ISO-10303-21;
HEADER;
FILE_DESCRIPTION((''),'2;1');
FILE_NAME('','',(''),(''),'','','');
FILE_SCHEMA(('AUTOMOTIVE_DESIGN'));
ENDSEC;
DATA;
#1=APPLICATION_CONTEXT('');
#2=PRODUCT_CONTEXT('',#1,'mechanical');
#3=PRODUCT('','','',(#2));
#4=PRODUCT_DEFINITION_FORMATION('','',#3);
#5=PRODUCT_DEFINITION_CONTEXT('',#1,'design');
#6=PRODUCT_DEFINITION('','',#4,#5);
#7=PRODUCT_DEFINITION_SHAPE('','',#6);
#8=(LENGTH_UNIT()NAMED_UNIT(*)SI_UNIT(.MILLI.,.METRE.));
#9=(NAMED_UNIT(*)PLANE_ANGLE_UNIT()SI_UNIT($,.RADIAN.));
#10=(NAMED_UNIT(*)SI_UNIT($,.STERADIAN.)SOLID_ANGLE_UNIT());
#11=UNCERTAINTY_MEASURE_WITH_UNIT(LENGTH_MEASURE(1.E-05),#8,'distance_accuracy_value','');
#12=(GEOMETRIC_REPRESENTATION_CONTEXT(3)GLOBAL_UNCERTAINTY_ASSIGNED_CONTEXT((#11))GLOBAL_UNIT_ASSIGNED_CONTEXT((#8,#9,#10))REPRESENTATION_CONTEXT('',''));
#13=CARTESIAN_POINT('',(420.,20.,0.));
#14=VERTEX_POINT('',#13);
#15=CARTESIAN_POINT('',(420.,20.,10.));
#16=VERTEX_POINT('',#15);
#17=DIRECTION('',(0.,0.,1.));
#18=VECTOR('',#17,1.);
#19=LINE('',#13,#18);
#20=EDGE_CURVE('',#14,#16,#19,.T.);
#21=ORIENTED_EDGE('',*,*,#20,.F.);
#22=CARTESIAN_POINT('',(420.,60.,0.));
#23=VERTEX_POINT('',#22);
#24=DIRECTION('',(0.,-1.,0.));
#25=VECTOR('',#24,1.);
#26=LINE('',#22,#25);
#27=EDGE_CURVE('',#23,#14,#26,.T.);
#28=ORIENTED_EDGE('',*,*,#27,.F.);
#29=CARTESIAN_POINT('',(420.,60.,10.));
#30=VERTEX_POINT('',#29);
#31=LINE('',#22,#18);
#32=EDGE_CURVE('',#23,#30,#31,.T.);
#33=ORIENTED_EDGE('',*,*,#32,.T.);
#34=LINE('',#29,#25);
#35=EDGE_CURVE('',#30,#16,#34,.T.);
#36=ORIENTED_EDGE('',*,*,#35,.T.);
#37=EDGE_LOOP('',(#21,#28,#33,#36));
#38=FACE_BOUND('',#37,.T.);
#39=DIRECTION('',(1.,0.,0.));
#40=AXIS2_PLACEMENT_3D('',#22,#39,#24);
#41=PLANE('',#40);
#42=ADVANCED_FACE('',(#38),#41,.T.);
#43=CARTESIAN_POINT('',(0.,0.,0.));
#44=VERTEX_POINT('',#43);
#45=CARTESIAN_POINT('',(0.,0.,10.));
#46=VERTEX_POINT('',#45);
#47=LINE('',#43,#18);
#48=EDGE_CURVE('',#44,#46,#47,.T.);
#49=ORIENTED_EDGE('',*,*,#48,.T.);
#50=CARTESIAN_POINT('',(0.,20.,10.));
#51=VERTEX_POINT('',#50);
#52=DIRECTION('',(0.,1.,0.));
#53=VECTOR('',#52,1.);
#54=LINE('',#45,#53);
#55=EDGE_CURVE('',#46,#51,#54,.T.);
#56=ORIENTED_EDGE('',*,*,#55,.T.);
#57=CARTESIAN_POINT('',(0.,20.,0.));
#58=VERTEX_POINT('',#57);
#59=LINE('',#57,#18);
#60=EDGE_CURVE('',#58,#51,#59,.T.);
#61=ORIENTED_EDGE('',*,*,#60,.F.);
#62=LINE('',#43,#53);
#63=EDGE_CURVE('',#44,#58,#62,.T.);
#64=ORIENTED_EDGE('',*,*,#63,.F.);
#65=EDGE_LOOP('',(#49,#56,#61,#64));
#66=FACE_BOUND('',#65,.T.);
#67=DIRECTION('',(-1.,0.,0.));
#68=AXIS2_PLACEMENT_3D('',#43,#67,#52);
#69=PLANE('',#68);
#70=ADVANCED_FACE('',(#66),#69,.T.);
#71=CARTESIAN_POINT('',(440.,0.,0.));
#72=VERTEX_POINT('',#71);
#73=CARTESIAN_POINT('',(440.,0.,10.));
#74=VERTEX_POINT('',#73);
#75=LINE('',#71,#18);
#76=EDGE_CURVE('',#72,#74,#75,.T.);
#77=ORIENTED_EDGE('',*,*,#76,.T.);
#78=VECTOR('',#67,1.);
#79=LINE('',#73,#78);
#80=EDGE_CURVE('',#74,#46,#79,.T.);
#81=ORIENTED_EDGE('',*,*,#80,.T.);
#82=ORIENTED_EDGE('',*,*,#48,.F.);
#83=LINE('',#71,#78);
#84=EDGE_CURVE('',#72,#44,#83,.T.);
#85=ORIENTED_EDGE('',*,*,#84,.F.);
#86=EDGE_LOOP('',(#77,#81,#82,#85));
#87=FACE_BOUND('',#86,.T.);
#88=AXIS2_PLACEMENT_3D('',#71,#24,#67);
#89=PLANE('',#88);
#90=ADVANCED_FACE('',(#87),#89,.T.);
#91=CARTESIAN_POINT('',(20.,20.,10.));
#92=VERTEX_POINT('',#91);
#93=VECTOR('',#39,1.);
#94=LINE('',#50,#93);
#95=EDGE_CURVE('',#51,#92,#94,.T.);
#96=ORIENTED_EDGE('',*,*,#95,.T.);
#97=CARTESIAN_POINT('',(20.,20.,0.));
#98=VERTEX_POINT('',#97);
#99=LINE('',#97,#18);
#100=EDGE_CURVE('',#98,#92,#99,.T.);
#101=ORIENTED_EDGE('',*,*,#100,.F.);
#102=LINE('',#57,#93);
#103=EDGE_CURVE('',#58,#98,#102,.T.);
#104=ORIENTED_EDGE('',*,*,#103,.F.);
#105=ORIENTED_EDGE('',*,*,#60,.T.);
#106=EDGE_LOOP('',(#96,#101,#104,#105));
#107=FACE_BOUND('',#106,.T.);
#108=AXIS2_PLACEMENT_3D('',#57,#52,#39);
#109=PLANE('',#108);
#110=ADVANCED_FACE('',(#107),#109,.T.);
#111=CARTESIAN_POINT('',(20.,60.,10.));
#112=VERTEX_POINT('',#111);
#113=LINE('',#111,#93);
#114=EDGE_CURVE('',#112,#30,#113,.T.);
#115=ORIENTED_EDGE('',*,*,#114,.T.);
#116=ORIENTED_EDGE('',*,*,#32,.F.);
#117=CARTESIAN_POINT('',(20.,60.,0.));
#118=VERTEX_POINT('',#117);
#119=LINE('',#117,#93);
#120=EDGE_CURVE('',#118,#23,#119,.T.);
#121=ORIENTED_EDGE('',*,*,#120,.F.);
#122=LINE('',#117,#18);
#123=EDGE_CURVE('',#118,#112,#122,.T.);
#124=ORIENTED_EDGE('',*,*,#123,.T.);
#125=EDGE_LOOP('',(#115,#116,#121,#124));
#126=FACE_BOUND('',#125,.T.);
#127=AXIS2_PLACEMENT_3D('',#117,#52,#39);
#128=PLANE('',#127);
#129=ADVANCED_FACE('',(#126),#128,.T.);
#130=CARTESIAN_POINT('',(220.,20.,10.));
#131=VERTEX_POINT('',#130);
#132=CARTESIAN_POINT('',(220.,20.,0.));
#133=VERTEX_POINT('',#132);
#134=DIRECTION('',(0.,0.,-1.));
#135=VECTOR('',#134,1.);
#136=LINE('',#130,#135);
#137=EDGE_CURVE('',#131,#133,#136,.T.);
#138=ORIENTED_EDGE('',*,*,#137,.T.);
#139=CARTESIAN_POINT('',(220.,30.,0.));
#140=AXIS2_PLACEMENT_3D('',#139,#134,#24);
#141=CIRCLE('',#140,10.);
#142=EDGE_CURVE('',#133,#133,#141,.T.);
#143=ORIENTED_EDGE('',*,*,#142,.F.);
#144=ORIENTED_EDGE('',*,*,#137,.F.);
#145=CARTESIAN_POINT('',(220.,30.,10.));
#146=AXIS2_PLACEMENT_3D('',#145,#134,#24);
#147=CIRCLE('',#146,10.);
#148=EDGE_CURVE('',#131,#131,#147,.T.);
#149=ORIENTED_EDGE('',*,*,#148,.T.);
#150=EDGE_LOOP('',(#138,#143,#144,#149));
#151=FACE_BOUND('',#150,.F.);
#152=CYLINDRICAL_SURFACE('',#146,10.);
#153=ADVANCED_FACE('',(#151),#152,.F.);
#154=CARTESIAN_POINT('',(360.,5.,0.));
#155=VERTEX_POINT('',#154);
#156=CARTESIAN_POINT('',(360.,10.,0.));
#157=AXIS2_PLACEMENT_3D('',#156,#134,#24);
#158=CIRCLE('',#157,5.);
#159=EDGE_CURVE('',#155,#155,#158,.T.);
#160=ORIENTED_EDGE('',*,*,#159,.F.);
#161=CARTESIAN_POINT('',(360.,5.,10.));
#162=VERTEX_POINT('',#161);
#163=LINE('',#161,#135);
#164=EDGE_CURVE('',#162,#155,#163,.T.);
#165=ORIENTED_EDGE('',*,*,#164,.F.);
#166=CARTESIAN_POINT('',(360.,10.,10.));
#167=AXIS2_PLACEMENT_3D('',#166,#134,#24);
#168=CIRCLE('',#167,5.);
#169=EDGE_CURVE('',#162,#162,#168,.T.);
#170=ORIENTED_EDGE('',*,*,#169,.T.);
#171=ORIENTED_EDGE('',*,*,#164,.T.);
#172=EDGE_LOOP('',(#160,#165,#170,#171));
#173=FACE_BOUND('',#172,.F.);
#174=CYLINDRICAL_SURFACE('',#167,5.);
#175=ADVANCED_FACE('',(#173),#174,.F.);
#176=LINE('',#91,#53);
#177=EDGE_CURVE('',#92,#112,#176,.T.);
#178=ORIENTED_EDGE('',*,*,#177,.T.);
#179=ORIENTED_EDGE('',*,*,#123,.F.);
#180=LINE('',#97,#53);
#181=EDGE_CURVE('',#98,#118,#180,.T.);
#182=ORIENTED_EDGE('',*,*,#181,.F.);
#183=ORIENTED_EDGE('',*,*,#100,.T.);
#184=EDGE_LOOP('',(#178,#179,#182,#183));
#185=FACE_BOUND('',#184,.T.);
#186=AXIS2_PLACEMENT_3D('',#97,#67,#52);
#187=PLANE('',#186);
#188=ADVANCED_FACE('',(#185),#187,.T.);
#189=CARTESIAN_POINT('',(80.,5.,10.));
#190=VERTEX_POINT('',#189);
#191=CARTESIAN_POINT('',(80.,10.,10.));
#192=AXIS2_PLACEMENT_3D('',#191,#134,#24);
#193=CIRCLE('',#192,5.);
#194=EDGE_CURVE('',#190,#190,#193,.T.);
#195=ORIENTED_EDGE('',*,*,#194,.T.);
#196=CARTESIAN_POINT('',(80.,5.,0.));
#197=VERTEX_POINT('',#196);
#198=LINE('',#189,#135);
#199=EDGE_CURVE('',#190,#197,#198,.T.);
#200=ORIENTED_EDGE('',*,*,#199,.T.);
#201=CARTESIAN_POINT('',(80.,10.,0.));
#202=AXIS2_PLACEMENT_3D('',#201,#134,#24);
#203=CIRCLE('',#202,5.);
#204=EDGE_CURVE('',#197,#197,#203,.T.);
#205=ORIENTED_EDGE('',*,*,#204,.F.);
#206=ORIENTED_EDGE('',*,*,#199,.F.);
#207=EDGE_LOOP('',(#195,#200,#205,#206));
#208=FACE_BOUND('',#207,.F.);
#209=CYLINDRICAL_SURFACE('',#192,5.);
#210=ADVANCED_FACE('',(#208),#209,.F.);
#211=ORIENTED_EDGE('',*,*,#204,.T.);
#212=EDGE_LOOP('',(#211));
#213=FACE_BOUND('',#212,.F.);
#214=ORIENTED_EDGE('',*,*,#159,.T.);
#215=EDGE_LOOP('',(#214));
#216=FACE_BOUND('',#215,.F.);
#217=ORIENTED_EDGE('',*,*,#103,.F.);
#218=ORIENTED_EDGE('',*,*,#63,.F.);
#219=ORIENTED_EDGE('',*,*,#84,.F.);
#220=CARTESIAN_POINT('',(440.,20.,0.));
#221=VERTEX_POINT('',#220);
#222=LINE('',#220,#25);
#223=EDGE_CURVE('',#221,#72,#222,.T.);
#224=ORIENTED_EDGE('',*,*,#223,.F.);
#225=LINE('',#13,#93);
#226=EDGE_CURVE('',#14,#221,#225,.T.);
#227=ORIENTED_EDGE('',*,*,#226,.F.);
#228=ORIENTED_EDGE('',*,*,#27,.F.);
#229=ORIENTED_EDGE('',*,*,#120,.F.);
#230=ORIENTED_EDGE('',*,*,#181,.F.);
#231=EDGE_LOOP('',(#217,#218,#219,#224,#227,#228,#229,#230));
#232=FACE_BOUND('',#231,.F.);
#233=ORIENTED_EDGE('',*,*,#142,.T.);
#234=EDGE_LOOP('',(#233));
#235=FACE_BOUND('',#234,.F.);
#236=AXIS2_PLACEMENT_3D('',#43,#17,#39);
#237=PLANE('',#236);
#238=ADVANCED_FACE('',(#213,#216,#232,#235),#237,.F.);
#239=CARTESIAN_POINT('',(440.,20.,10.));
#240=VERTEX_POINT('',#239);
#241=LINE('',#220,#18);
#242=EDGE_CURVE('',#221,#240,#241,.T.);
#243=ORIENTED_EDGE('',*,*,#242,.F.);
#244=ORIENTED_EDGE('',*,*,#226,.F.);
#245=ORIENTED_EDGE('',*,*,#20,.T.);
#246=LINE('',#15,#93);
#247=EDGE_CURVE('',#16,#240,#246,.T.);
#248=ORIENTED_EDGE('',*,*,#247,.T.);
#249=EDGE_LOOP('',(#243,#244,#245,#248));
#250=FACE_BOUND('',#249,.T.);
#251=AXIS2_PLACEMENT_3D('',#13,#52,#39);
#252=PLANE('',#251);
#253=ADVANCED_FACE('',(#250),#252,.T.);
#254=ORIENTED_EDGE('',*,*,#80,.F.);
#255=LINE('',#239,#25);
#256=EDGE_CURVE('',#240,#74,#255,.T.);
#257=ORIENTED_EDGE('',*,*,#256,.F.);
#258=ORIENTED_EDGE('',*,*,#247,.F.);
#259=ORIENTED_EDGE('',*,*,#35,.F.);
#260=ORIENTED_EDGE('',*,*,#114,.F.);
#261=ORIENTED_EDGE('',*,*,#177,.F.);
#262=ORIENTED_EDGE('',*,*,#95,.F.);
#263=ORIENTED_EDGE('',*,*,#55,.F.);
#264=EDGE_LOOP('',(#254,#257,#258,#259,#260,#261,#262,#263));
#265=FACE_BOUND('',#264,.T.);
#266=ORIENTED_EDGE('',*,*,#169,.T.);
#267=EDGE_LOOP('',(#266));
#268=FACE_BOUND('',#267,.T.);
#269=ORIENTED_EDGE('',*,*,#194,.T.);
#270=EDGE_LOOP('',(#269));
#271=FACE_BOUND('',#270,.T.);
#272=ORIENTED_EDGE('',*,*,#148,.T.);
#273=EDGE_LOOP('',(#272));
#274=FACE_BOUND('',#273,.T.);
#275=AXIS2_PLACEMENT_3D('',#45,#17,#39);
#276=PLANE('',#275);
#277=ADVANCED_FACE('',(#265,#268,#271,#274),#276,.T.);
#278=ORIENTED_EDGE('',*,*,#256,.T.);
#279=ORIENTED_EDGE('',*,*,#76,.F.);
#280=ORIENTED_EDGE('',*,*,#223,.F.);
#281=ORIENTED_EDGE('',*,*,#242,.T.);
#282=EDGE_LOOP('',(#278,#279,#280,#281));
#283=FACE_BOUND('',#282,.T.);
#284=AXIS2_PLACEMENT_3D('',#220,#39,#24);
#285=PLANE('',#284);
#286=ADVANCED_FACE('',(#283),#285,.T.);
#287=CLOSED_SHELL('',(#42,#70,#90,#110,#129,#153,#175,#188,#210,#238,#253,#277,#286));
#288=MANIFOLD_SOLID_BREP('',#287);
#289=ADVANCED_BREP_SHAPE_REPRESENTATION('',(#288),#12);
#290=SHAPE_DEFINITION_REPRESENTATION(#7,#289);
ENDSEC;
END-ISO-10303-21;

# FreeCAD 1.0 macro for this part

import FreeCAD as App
import Part
import Sketcher
from FreeCAD import Vector
Q = App.Units.Quantity


def add_polygon(sketch, points):
    """Adds a closed chain of lines whose ends are joined by coincident constraints."""
    first, n = sketch.GeometryCount, len(points)
    for a, b in zip(points, points[1:] + points[:1]):
        sketch.addGeometry(Part.LineSegment(App.Vector(*a, 0), App.Vector(*b, 0)), False)
    for i in range(n):
        sketch.addConstraint(Sketcher.Constraint("Coincident", first + i, 2, first + (i + 1) % n, 1))

doc = App.newDocument("Part")
body = doc.addObject("PartDesign::Body", "Body")

sketch1 = body.newObject("Sketcher::SketchObject", "Sketch")
sketch1.AttachmentSupport = (doc.getObject("XY_Plane"), [""])
sketch1.MapMode = "FlatFace"
add_polygon(sketch1, [(0, 20), (0, 0), (440, 0), (440, 20), (420, 20), (420, 60), (20, 60), (20, 20)])
sketch1.addConstraint(Sketcher.Constraint("Vertical", 0))
sketch1.addConstraint(Sketcher.Constraint("Horizontal", 1))
sketch1.addConstraint(Sketcher.Constraint("Vertical", 2))
sketch1.addConstraint(Sketcher.Constraint("Horizontal", 3))
sketch1.addConstraint(Sketcher.Constraint("Vertical", 4))
sketch1.addConstraint(Sketcher.Constraint("Horizontal", 5))
sketch1.addConstraint(Sketcher.Constraint("Vertical", 6))
sketch1.addConstraint(Sketcher.Constraint("Horizontal", 7))
sketch1.addConstraint(Sketcher.Constraint("Coincident", 0, 2, -1, 1))
sketch1.addConstraint(Sketcher.Constraint("Horizontal", 3, 2, 6, 2))
sketch1.addConstraint(Sketcher.Constraint("Equal", 3, 7))
sketch1.addConstraint(Sketcher.Constraint("Equal", 7, 0))
sketch1.addConstraint(Sketcher.Constraint("DistanceX", 3, 2, 3, 1, Q("20 mm")))
sketch1.addConstraint(Sketcher.Constraint("DistanceX", 5, 2, 5, 1, Q("400 mm")))
sketch1.addConstraint(Sketcher.Constraint("DistanceY", 4, 1, 4, 2, Q("40 mm")))
pad1 = body.newObject("PartDesign::Pad", "Pad")
pad1.Profile = sketch1
pad1.Length = 10

sketch2 = body.newObject("Sketcher::SketchObject", "Sketch001")
sketch2.AttachmentSupport = (doc.getObject("XY_Plane"), [""])
sketch2.MapMode = "FlatFace"
sketch2.AttachmentOffset = App.Placement(Vector(0, 0, 10), App.Rotation())
sketch2.addGeometry(Part.Circle(Vector(80, 10, 0), Vector(0, 0, 1), 5), False)
sketch2.addConstraint(Sketcher.Constraint("Diameter", 0, Q("10 mm")))
sketch2.addConstraint(Sketcher.Constraint("DistanceX", -1, 1, 0, 3, Q("80 mm")))
sketch2.addConstraint(Sketcher.Constraint("DistanceY", -1, 1, 0, 3, Q("10 mm")))
doc.recompute()
hole = body.newObject("PartDesign::Hole", "Hole")
hole.Profile = sketch2
hole.ThreadType = "None"
hole.Diameter = 10
hole.DepthType = "ThroughAll"

sketch3 = body.newObject("Sketcher::SketchObject", "Sketch002")
sketch3.AttachmentSupport = (doc.getObject("XY_Plane"), [""])
sketch3.MapMode = "FlatFace"
sketch3.AttachmentOffset = App.Placement(Vector(0, 0, 10), App.Rotation())
sketch3.addGeometry(Part.Circle(Vector(360, 10, 0), Vector(0, 0, 1), 5), False)
sketch3.addConstraint(Sketcher.Constraint("Diameter", 0, Q("10 mm")))
sketch3.addConstraint(Sketcher.Constraint("DistanceX", -1, 1, 0, 3, Q("360 mm")))
sketch3.addConstraint(Sketcher.Constraint("DistanceY", -1, 1, 0, 3, Q("10 mm")))
doc.recompute()
hole2 = body.newObject("PartDesign::Hole", "Hole001")
hole2.Profile = sketch3
hole2.ThreadType = "None"
hole2.Diameter = 10
hole2.DepthType = "ThroughAll"

sketch4 = body.newObject("Sketcher::SketchObject", "Sketch003")
sketch4.AttachmentSupport = (doc.getObject("XY_Plane"), [""])
sketch4.MapMode = "FlatFace"
sketch4.AttachmentOffset = App.Placement(Vector(0, 0, 10), App.Rotation())
sketch4.addGeometry(Part.Circle(Vector(220, 30, 0), Vector(0, 0, 1), 10), False)
sketch4.addConstraint(Sketcher.Constraint("Diameter", 0, Q("20 mm")))
sketch4.addConstraint(Sketcher.Constraint("DistanceX", -1, 1, 0, 3, Q("220 mm")))
sketch4.addConstraint(Sketcher.Constraint("DistanceY", -1, 1, 0, 3, Q("30 mm")))
doc.recompute()
hole3 = body.newObject("PartDesign::Hole", "Hole002")
hole3.Profile = sketch4
hole3.ThreadType = "None"
hole3.Diameter = 20
hole3.DepthType = "ThroughAll"

doc.recompute()
